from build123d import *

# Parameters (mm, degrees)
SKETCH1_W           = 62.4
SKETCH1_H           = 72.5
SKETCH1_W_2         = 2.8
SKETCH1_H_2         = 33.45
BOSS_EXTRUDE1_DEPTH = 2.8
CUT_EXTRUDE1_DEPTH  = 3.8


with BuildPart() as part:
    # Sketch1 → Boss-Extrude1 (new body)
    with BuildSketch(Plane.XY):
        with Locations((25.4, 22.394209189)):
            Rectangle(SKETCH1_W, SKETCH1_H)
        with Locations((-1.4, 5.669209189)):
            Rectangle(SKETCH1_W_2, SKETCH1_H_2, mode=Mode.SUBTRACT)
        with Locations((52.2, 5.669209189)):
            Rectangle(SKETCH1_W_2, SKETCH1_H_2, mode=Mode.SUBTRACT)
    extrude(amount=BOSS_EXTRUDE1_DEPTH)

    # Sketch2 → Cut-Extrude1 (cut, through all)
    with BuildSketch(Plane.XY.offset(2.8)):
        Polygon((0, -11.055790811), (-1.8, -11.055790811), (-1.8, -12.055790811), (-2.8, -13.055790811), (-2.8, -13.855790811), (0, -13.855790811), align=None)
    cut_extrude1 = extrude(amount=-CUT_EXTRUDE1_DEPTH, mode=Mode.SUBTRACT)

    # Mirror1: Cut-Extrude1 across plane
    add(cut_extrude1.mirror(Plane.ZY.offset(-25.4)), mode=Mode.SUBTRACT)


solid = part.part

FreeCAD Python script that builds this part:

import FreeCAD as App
import Part
import Sketcher
Q = App.Units.Quantity

doc = App.newDocument("Part")
params = doc.addObject("Spreadsheet::Sheet", "Params")
for row, (alias, value) in enumerate([
    ("sketch1_width", "62.4 mm"),
    ("sketch1_width2", "2.8 mm"),
    ("sketch1_height", "72.5 mm"),
    ("sketch1_height2", "33.45 mm"),
    ("pad1_length", "2.8 mm"),
    ("sketch2_height", "1 mm"),
    ("sketch2_width", "1.8 mm"),
    ("sketch2_width2", "2.8 mm"),
], start=1):
    params.set(f"A{row}", alias)
    params.set(f"B{row}", "=" + value)
    params.setAlias(f"B{row}", alias)

body = doc.addObject("PartDesign::Body", "Body")

# Sketch on XY plane
sketch1 = body.newObject("Sketcher::SketchObject", "Sketch")
sketch1.AttachmentSupport = (doc.getObject("XY_Plane"), [""])
sketch1.MapMode = "FlatFace"
sketch1.addGeometry([
    Part.LineSegment(App.Vector(-5.8, 58.6, 0), App.Vector(-5.8, -13.9, 0)),  # 0
    Part.LineSegment(App.Vector(-5.8, -13.9, 0), App.Vector(56.6, -13.9, 0)),  # 1
    Part.LineSegment(App.Vector(56.6, -13.9, 0), App.Vector(56.6, 58.6, 0)),  # 2
    Part.LineSegment(App.Vector(56.6, 58.6, 0), App.Vector(-5.8, 58.6, 0)),  # 3
    Part.LineSegment(App.Vector(0, -11.1, 0), App.Vector(-2.8, -11.1, 0)),  # 4
    Part.LineSegment(App.Vector(-2.8, -11.1, 0), App.Vector(-2.8, 22.4, 0)),  # 5
    Part.LineSegment(App.Vector(-2.8, 22.4, 0), App.Vector(0, 22.4, 0)),  # 6
    Part.LineSegment(App.Vector(0, 22.4, 0), App.Vector(0, -11.1, 0)),  # 7
    Part.LineSegment(App.Vector(53.6, -11.1, 0), App.Vector(50.8, -11.1, 0)),  # 8
    Part.LineSegment(App.Vector(50.8, -11.1, 0), App.Vector(50.8, 22.4, 0)),  # 9
    Part.LineSegment(App.Vector(50.8, 22.4, 0), App.Vector(53.6, 22.4, 0)),  # 10
    Part.LineSegment(App.Vector(53.6, 22.4, 0), App.Vector(53.6, -11.1, 0)),  # 11
], False)
sketch1.addConstraint([
    Sketcher.Constraint("Coincident", 0, 2, 1, 1),
    Sketcher.Constraint("Coincident", 1, 2, 2, 1),
    Sketcher.Constraint("Coincident", 2, 2, 3, 1),
    Sketcher.Constraint("Coincident", 3, 2, 0, 1),
    Sketcher.Constraint("Coincident", 4, 2, 5, 1),
    Sketcher.Constraint("Coincident", 5, 2, 6, 1),
    Sketcher.Constraint("Coincident", 6, 2, 7, 1),
    Sketcher.Constraint("Coincident", 7, 2, 4, 1),
    Sketcher.Constraint("Coincident", 8, 2, 9, 1),
    Sketcher.Constraint("Coincident", 9, 2, 10, 1),
    Sketcher.Constraint("Coincident", 10, 2, 11, 1),
    Sketcher.Constraint("Coincident", 11, 2, 8, 1),
    Sketcher.Constraint("Vertical", 0),
    Sketcher.Constraint("Horizontal", 1),
    Sketcher.Constraint("Vertical", 2),
    Sketcher.Constraint("Horizontal", 3),
    Sketcher.Constraint("Horizontal", 4),
    Sketcher.Constraint("Vertical", 5),
    Sketcher.Constraint("Horizontal", 6),
    Sketcher.Constraint("Vertical", 7),
    Sketcher.Constraint("Horizontal", 8),
    Sketcher.Constraint("Vertical", 9),
    Sketcher.Constraint("Horizontal", 10),
    Sketcher.Constraint("Vertical", 11),
    Sketcher.Constraint("PointOnObject", 6, 2, -2),
    Sketcher.Constraint("Horizontal", 7, 2, 8, 2),
    Sketcher.Constraint("Horizontal", 6, 2, 9, 2),
    Sketcher.Constraint("Equal", 6, 8),
    Sketcher.Constraint("DistanceX", 1, 1, 1, 2, Q("62.4 mm")),
    Sketcher.Constraint("DistanceX", 4, 2, 4, 1, Q("2.8 mm")),
    Sketcher.Constraint("DistanceY", 0, 2, 0, 1, Q("72.5 mm")),
    Sketcher.Constraint("DistanceX", 0, 2, 4, 2, Q("3 mm")),
    Sketcher.Constraint("DistanceX", 10, 2, 1, 2, Q("3 mm")),
    Sketcher.Constraint("DistanceY", 5, 1, 5, 2, Q("33.45 mm")),
    Sketcher.Constraint("DistanceY", 0, 2, 4, 2, Q("2.8 mm")),
    Sketcher.Constraint("DistanceY", 0, 2, -1, 1, Q("13.855791 mm")),
])
sketch1.setExpression("Constraints[28]", "Params.sketch1_width")
sketch1.setExpression("Constraints[29]", "Params.sketch1_width2")
sketch1.setExpression("Constraints[30]", "Params.sketch1_height")
sketch1.setExpression("Constraints[33]", "Params.sketch1_height2")
pad1 = body.newObject("PartDesign::Pad", "Pad")
pad1.Profile = sketch1
pad1.setExpression("Length", "Params.pad1_length")

# Sketch on XY plane
sketch2 = body.newObject("Sketcher::SketchObject", "Sketch001")
sketch2.AttachmentSupport = (doc.getObject("XY_Plane"), [""])
sketch2.MapMode = "FlatFace"
sketch2.AttachmentOffset = App.Placement(App.Vector(0, 0, 2.8), App.Rotation())
sketch2.addGeometry([
    Part.LineSegment(App.Vector(0, -11.1, 0), App.Vector(-1.8, -11.1, 0)),  # 0
    Part.LineSegment(App.Vector(-1.8, -11.1, 0), App.Vector(-1.8, -12.1, 0)),  # 1
    Part.LineSegment(App.Vector(-1.8, -12.1, 0), App.Vector(-2.8, -13.1, 0)),  # 2
    Part.LineSegment(App.Vector(-2.8, -13.1, 0), App.Vector(-2.8, -13.9, 0)),  # 3
    Part.LineSegment(App.Vector(-2.8, -13.9, 0), App.Vector(0, -13.9, 0)),  # 4
    Part.LineSegment(App.Vector(0, -13.9, 0), App.Vector(0, -11.1, 0)),  # 5
], False)
sketch2.addConstraint([
    Sketcher.Constraint("Coincident", 0, 2, 1, 1),
    Sketcher.Constraint("Coincident", 1, 2, 2, 1),
    Sketcher.Constraint("Coincident", 2, 2, 3, 1),
    Sketcher.Constraint("Coincident", 3, 2, 4, 1),
    Sketcher.Constraint("Coincident", 4, 2, 5, 1),
    Sketcher.Constraint("Coincident", 5, 2, 0, 1),
    Sketcher.Constraint("Horizontal", 0),
    Sketcher.Constraint("Vertical", 1),
    Sketcher.Constraint("Vertical", 3),
    Sketcher.Constraint("Horizontal", 4),
    Sketcher.Constraint("Vertical", 5),
    Sketcher.Constraint("PointOnObject", 4, 2, -2),
    Sketcher.Constraint("Equal", 4, 5),
    Sketcher.Constraint("DistanceY", 1, 2, 1, 1, Q("1 mm")),
    Sketcher.Constraint("Angle", 2, Q("-135 deg")),
    Sketcher.Constraint("DistanceX", 0, 2, 0, 1, Q("1.8 mm")),
    Sketcher.Constraint("DistanceX", 4, 1, 4, 2, Q("2.8 mm")),
    Sketcher.Constraint("DistanceY", 0, 2, -1, 1, Q("11.055791 mm")),
])
sketch2.setExpression("Constraints[13]", "Params.sketch2_height")
sketch2.setExpression("Constraints[15]", "Params.sketch2_width")
sketch2.setExpression("Constraints[16]", "Params.sketch2_width2")
pocket1 = body.newObject("PartDesign::Pocket", "Pocket")
pocket1.Profile = sketch2
pocket1.Type = "ThroughAll"
doc.recompute()

datumplane = body.newObject("PartDesign::Plane", "DatumPlane")
datumplane.AttachmentSupport = (doc.getObject("YZ_Plane"), [""])
datumplane.MapMode = "FlatFace"
datumplane.AttachmentOffset = App.Placement(App.Vector(0, 0, 25.4), App.Rotation())
mirrored = body.newObject("PartDesign::Mirrored", "Mirrored")
mirrored.Originals = [pocket1]
mirrored.MirrorPlane = (datumplane, [""])
body.Tip = mirrored

doc.recompute()
